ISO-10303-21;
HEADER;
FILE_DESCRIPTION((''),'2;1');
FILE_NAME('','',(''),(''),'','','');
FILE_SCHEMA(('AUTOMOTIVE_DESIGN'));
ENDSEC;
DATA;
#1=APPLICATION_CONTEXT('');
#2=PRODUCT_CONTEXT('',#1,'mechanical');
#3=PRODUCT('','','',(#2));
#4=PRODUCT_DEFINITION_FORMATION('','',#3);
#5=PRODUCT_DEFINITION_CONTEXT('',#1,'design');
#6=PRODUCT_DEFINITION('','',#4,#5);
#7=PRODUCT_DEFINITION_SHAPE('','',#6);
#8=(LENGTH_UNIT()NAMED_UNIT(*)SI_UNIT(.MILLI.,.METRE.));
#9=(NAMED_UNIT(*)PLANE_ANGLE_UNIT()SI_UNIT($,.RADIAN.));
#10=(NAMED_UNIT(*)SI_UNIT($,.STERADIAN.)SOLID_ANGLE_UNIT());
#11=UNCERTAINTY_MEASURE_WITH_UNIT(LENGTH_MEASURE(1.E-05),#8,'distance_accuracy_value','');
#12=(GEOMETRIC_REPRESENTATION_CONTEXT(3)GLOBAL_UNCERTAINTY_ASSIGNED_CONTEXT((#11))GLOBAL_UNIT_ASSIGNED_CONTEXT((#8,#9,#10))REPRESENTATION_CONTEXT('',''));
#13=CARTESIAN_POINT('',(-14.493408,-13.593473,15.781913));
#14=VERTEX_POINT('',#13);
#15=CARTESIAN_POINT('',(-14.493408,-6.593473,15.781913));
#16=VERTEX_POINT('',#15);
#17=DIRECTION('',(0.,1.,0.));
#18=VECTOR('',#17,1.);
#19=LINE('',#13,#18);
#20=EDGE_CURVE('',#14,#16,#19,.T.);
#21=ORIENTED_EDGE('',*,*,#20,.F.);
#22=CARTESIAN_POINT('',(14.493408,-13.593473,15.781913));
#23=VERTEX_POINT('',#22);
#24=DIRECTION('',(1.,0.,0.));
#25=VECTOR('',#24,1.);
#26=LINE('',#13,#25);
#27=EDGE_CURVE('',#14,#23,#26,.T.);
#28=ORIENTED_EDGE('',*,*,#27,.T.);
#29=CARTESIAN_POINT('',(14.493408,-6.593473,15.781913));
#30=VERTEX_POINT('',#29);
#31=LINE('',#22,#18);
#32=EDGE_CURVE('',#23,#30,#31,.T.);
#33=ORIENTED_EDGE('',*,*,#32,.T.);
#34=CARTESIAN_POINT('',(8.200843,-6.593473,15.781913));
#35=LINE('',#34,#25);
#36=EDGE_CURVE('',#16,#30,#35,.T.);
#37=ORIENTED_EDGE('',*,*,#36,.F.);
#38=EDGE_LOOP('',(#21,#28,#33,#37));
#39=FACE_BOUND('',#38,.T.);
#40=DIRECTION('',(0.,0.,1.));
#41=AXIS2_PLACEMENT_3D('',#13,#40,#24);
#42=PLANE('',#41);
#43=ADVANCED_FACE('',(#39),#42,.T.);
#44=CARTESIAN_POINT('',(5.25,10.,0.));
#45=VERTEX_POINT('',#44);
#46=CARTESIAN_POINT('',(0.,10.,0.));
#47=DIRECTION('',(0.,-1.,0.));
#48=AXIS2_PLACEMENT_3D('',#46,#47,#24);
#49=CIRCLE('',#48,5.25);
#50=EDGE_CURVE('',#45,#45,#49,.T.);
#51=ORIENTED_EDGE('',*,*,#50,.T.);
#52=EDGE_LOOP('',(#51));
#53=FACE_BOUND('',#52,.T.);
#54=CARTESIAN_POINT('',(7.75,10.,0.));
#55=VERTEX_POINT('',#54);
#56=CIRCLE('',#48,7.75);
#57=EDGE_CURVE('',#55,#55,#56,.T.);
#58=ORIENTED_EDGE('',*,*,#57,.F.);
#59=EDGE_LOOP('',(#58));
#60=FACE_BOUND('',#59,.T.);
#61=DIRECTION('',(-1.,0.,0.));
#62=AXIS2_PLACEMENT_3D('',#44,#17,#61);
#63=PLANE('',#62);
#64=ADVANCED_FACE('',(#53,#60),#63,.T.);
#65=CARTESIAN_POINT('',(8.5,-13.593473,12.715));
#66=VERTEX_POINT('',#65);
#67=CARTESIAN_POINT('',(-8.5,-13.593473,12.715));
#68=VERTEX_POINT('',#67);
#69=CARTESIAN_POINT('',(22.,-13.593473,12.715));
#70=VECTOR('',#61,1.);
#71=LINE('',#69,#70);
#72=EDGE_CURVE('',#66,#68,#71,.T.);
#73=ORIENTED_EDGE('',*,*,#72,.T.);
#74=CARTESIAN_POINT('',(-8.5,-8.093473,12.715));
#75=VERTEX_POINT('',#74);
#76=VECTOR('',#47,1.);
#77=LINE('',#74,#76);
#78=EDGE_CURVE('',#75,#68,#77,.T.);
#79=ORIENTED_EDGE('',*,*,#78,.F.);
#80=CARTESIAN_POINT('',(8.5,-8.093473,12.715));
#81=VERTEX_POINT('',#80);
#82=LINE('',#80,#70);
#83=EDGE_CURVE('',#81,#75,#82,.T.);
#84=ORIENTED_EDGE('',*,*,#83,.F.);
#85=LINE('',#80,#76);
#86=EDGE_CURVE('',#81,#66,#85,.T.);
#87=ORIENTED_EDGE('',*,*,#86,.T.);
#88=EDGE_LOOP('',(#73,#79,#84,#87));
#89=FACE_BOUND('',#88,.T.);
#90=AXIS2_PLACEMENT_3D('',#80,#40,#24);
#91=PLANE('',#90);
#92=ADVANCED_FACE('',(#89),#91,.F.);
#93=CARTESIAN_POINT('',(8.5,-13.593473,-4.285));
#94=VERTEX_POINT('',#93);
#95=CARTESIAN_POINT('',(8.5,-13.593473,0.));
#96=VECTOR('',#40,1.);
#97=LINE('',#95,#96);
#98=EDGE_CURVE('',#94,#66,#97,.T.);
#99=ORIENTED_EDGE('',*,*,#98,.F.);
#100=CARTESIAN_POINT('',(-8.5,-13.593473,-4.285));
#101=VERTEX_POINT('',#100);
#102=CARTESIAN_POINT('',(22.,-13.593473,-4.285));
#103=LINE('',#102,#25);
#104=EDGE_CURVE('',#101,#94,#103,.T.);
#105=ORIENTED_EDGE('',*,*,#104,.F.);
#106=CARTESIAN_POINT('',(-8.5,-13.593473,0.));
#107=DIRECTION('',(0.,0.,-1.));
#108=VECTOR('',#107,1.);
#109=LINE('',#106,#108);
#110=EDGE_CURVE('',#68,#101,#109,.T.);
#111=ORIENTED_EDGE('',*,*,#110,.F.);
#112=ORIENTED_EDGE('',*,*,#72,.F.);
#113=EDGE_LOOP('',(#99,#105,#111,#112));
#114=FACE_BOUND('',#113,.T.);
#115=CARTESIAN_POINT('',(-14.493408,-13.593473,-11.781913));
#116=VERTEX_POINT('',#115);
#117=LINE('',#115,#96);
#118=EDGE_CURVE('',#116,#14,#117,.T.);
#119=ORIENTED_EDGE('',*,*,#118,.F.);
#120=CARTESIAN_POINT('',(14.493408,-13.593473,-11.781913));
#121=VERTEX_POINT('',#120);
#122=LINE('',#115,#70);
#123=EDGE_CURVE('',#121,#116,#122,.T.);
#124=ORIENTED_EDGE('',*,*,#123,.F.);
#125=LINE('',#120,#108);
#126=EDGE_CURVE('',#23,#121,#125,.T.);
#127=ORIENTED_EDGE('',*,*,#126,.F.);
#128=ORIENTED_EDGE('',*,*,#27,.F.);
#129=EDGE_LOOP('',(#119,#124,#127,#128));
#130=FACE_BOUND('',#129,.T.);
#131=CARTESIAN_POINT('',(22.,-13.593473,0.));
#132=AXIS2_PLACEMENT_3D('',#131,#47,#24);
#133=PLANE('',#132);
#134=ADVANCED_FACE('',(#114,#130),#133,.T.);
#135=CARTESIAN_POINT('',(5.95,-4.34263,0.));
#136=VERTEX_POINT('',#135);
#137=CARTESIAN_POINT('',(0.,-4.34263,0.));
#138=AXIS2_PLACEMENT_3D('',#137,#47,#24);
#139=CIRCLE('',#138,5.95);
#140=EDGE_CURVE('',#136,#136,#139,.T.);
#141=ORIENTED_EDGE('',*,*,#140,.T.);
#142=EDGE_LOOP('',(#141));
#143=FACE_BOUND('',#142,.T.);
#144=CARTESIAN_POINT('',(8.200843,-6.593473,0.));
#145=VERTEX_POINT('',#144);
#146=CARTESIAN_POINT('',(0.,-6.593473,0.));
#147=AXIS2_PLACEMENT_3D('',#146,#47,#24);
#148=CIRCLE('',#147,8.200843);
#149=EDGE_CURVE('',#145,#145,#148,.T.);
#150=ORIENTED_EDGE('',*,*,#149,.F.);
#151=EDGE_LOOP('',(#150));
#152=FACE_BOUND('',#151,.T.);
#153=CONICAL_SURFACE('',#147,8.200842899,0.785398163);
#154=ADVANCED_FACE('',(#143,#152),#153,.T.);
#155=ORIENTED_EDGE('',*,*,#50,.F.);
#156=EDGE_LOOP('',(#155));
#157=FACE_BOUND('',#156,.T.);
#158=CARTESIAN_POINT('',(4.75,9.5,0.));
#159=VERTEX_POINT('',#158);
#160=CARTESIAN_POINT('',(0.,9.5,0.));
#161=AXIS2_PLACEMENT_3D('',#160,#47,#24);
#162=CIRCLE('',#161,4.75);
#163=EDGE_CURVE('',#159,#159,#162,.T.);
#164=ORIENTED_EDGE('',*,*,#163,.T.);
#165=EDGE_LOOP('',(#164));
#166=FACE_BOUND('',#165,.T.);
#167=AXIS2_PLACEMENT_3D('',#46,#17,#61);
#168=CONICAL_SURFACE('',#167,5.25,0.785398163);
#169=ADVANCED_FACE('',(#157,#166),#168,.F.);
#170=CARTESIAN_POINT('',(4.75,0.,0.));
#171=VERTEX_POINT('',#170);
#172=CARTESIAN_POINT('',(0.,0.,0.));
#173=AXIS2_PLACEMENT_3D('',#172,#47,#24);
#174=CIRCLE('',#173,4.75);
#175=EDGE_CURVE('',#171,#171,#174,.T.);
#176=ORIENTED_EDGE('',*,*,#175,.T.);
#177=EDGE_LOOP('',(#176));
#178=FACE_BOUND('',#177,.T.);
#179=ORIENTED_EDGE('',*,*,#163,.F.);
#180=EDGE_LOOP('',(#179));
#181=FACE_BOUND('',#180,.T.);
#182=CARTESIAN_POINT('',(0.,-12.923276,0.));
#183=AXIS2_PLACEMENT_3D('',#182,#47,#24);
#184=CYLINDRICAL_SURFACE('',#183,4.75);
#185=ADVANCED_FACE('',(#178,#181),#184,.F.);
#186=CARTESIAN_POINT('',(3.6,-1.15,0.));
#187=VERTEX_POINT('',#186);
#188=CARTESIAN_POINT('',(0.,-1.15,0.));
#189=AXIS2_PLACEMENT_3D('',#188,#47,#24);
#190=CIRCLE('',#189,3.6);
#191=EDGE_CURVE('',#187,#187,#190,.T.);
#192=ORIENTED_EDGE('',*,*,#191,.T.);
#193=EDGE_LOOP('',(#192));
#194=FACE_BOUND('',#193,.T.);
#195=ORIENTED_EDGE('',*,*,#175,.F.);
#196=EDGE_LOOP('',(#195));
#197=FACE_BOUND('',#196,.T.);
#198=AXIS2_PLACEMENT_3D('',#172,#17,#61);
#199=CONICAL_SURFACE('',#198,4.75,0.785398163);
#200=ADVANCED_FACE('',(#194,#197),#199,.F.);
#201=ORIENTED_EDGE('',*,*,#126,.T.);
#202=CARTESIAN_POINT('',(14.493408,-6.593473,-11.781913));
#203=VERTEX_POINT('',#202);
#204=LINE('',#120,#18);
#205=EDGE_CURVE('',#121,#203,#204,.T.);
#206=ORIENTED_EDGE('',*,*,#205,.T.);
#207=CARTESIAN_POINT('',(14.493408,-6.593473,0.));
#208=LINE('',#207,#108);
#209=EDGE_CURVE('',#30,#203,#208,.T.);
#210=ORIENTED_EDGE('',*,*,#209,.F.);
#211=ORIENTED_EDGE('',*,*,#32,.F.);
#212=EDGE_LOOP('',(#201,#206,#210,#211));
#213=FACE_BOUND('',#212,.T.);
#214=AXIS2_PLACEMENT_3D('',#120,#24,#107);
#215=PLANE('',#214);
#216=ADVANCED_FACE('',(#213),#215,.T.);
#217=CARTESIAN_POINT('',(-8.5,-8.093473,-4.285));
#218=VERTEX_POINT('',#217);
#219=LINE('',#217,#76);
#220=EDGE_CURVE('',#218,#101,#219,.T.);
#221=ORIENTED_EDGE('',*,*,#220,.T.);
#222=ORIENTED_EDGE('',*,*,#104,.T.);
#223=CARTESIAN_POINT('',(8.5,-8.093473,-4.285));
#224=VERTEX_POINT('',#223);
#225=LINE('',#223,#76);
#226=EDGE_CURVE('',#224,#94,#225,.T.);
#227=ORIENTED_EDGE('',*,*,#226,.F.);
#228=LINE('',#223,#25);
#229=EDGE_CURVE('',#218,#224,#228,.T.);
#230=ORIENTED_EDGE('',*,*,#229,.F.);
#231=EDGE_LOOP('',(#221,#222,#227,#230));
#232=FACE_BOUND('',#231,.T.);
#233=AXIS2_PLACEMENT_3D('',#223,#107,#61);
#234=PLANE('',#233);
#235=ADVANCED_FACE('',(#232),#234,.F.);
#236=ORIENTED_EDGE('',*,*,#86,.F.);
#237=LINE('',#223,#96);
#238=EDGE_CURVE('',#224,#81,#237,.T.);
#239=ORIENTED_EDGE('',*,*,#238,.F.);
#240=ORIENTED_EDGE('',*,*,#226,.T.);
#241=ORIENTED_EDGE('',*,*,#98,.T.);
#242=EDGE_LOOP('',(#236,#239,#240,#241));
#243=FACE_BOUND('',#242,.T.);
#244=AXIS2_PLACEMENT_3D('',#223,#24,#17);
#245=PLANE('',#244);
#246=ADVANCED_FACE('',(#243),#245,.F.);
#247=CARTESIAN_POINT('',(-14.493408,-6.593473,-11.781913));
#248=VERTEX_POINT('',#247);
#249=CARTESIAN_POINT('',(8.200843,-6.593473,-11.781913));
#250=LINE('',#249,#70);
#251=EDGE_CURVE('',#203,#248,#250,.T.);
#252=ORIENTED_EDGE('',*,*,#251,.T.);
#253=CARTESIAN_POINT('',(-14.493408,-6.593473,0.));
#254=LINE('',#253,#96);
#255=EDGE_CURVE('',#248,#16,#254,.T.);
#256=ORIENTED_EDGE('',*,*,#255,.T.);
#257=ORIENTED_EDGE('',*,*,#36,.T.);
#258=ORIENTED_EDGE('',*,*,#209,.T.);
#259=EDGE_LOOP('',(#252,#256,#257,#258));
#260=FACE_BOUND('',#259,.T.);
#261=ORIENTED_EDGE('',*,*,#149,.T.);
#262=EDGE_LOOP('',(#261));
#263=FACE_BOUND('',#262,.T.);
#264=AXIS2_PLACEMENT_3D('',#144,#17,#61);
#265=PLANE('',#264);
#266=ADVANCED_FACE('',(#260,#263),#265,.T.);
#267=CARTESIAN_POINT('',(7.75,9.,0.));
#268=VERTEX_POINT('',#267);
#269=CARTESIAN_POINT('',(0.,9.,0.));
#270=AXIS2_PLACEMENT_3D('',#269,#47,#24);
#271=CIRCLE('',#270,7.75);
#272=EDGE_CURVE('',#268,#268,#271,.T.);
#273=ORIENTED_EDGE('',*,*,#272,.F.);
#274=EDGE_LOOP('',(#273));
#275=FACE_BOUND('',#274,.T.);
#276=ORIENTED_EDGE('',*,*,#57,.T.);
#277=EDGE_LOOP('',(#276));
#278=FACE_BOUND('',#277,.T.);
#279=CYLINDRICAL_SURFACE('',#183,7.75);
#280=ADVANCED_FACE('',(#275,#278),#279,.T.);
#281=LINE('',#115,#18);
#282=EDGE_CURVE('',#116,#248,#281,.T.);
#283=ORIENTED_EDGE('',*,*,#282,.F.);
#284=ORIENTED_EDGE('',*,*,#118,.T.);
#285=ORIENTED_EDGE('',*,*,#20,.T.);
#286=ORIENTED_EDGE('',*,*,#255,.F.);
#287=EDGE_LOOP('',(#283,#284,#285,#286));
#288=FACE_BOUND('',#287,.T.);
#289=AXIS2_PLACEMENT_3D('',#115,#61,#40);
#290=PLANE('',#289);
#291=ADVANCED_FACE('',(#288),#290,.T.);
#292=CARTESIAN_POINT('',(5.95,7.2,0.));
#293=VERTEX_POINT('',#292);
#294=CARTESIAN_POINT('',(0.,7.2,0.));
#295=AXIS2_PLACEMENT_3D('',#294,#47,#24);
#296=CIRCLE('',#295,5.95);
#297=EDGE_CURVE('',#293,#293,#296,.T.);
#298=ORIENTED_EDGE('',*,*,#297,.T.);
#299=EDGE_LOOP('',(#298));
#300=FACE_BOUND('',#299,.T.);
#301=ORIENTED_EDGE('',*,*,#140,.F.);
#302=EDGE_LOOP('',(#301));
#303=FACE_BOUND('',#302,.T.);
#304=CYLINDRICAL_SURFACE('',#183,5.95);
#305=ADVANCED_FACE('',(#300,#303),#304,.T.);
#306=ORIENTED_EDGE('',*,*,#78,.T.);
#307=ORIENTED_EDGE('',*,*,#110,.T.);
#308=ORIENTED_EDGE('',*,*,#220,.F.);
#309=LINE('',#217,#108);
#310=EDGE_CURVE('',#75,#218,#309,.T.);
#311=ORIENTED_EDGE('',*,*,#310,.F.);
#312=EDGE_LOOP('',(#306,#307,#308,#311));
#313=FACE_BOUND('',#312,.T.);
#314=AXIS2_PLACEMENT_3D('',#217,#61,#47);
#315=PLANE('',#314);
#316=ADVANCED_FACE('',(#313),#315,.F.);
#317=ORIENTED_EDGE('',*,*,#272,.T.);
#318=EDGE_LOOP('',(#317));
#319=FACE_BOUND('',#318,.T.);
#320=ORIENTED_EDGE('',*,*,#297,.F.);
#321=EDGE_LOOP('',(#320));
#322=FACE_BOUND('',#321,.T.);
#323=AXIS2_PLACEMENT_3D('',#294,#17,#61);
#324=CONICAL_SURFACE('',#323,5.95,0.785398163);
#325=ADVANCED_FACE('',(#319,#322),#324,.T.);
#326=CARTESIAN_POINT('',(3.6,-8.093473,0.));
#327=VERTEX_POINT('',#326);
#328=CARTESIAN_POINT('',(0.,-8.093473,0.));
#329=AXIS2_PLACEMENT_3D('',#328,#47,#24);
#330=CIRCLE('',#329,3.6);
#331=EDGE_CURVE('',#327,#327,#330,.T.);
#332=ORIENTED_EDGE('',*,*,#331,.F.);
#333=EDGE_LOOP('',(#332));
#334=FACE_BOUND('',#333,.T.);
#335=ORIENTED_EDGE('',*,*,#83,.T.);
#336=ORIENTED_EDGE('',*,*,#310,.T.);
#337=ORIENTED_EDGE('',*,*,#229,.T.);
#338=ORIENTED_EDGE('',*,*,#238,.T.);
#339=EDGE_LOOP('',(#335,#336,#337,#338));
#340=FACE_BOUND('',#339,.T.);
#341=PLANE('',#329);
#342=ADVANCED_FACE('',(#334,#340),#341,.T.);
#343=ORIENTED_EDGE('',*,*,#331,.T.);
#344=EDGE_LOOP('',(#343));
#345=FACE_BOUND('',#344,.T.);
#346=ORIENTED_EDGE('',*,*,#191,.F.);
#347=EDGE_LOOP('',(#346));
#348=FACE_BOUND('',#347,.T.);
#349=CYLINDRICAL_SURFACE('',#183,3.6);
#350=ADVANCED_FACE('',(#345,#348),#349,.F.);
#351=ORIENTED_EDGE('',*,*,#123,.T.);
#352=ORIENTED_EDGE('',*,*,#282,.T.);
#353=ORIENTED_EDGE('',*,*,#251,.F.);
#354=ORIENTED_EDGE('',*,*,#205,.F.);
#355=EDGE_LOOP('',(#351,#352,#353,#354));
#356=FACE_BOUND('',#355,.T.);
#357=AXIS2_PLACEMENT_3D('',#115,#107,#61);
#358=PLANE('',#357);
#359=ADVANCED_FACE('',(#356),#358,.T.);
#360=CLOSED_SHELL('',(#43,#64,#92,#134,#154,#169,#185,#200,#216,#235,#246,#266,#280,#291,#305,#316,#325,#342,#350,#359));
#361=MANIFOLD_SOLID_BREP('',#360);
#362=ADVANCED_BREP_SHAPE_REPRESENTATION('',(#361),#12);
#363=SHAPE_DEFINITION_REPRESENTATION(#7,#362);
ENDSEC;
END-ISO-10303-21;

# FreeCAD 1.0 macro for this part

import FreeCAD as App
import Part
import Sketcher
from FreeCAD import Vector
Q = App.Units.Quantity


def add_polygon(sketch, points):
    """Adds a closed chain of lines whose ends are joined by coincident constraints."""
    first, n = sketch.GeometryCount, len(points)
    for a, b in zip(points, points[1:] + points[:1]):
        sketch.addGeometry(Part.LineSegment(App.Vector(*a, 0), App.Vector(*b, 0)), False)
    for i in range(n):
        sketch.addConstraint(Sketcher.Constraint("Coincident", first + i, 2, first + (i + 1) % n, 1))

doc = App.newDocument("Part")
body = doc.addObject("PartDesign::Body", "Body")

# Sketch on XY plane
sketch1 = doc.addObject("Sketcher::SketchObject", "Sketch")
body.addObject(sketch1)
sketch1.AttachmentSupport = (doc.XY_Plane, [""])
sketch1.MapMode = "FlatFace"
add_polygon(sketch1, [(4.8, 9.5), (4.8, 0), (3.6, -1.1), (3.6, -13.6), (22, -13.6), (22, -6.6), (8.2, -6.6), (6, -4.3), (6, 7.2), (7.8, 9), (7.8, 10), (5.2, 10)])  # lines 0-11
sketch1.addConstraint(Sketcher.Constraint("Vertical", 0))
sketch1.addConstraint(Sketcher.Constraint("Vertical", 2))
sketch1.addConstraint(Sketcher.Constraint("Horizontal", 3))
sketch1.addConstraint(Sketcher.Constraint("Vertical", 4))
sketch1.addConstraint(Sketcher.Constraint("Horizontal", 5))
sketch1.addConstraint(Sketcher.Constraint("Vertical", 7))
sketch1.addConstraint(Sketcher.Constraint("Vertical", 9))
sketch1.addConstraint(Sketcher.Constraint("Horizontal", 10))
sketch1.addConstraint(Sketcher.Constraint("PointOnObject", 0, 2, -1))
sketch1.addConstraint(Sketcher.Constraint("Perpendicular", 1, 6))
sketch1.addConstraint(Sketcher.Constraint("Perpendicular", 6, 8))
sketch1.addConstraint(Sketcher.Constraint("Parallel", 8, 11))
sketch1.addConstraint(Sketcher.Constraint("DistanceY", 4, 1, 4, 2, 7.0))
sketch1.addConstraint(Sketcher.Constraint("DistanceY", 9, 1, 9, 2, 1.0))
sketch1.addConstraint(Sketcher.Constraint("Angle", 1, Q("-135 deg")))
sketch1.addConstraint(Sketcher.Constraint("DistanceX", 3, 1, 3, 2, 18.4))
sketch1.addConstraint(Sketcher.Constraint("DistanceX", 10, 2, 10, 1, 2.5))
sketch1.addConstraint(Sketcher.Constraint("DistanceY", 0, 2, 0, 1, 9.5))
sketch1.addConstraint(Sketcher.Constraint("DistanceX", -1, 1, 3, 2, 22.0))
sketch1.addConstraint(Sketcher.Constraint("DistanceY", -1, 1, 8, 2, 9.0))
sketch1.addConstraint(Sketcher.Constraint("DistanceY", -1, 1, 7, 2, 7.2))
sketch1.addConstraint(Sketcher.Constraint("DistanceX", -1, 1, 0, 2, 4.75))
sketch1.addConstraint(Sketcher.Constraint("DistanceY", 7, 1, 7, 2, 11.54263))
sketch1.addConstraint(Sketcher.Constraint("DistanceX", 5, 2, 5, 1, 13.799157))
revolution = doc.addObject("PartDesign::Revolution", "Revolution")
body.addObject(revolution)
revolution.Profile = sketch1
revolution.ReferenceAxis = (sketch1, ["V_Axis"])
revolution.Angle = 360

# Sketch on XZ plane
sketch2 = doc.addObject("Sketcher::SketchObject", "Sketch001")
body.addObject(sketch2)
sketch2.AttachmentSupport = (doc.XZ_Plane, [""])
sketch2.MapMode = "FlatFace"
add_polygon(sketch2, [(-30, -30), (-30, 30), (30, 30), (30, -30)])  # lines 0-3
add_polygon(sketch2, [(14, 16), (-14, 16), (-14, -12), (14, -12)])  # lines 4-7
sketch2.addConstraint(Sketcher.Constraint("Vertical", 0))
sketch2.addConstraint(Sketcher.Constraint("Horizontal", 1))
sketch2.addConstraint(Sketcher.Constraint("Vertical", 2))
sketch2.addConstraint(Sketcher.Constraint("Horizontal", 3))
sketch2.addConstraint(Sketcher.Constraint("Horizontal", 4))
sketch2.addConstraint(Sketcher.Constraint("Vertical", 5))
sketch2.addConstraint(Sketcher.Constraint("Horizontal", 6))
sketch2.addConstraint(Sketcher.Constraint("Vertical", 7))
sketch2.addConstraint(Sketcher.Constraint("Symmetric", 0, 2, 2, 2, -1, 1))
sketch2.addConstraint(Sketcher.Constraint("Equal", 3, 0))
sketch2.addConstraint(Sketcher.Constraint("DistanceX", 1, 1, 1, 2, 59.31))
sketch2.addConstraint(Sketcher.Constraint("DistanceX", 4, 2, 4, 1, 28.986816))
sketch2.addConstraint(Sketcher.Constraint("DistanceY", 5, 2, 5, 1, 27.563826))
sketch2.addConstraint(Sketcher.Constraint("DistanceX", 4, 2, -1, 1, 14.493408))
sketch2.addConstraint(Sketcher.Constraint("DistanceY", -1, 1, 4, 2, 15.781913))
pocket1 = doc.addObject("PartDesign::Pocket", "Pocket")
body.addObject(pocket1)
pocket1.Profile = sketch2
pocket1.Type = "ThroughAll"
pocket1.Midplane = True

# Sketch on XZ plane
sketch3 = doc.addObject("Sketcher::SketchObject", "Sketch002")
body.addObject(sketch3)
sketch3.AttachmentSupport = (doc.XZ_Plane, [""])
sketch3.MapMode = "FlatFace"
sketch3.AttachmentOffset = App.Placement(Vector(0, 0, 14.593473), App.Rotation())
add_polygon(sketch3, [(8, -4), (8, 13), (-8, 13), (-8, -4)])  # lines 0-3
sketch3.addConstraint(Sketcher.Constraint("Vertical", 0))
sketch3.addConstraint(Sketcher.Constraint("Horizontal", 1))
sketch3.addConstraint(Sketcher.Constraint("Vertical", 2))
sketch3.addConstraint(Sketcher.Constraint("Horizontal", 3))
sketch3.addConstraint(Sketcher.Constraint("Equal", 3, 0))
sketch3.addConstraint(Sketcher.Constraint("DistanceX", 1, 2, 1, 1, 17.0))
sketch3.addConstraint(Sketcher.Constraint("DistanceX", -1, 1, 0, 2, 8.5))
sketch3.addConstraint(Sketcher.Constraint("DistanceY", -1, 1, 0, 2, 12.715))
pocket2 = doc.addObject("PartDesign::Pocket", "Pocket001")
body.addObject(pocket2)
pocket2.Profile = sketch3
pocket2.Length = 6.5

doc.recompute()
